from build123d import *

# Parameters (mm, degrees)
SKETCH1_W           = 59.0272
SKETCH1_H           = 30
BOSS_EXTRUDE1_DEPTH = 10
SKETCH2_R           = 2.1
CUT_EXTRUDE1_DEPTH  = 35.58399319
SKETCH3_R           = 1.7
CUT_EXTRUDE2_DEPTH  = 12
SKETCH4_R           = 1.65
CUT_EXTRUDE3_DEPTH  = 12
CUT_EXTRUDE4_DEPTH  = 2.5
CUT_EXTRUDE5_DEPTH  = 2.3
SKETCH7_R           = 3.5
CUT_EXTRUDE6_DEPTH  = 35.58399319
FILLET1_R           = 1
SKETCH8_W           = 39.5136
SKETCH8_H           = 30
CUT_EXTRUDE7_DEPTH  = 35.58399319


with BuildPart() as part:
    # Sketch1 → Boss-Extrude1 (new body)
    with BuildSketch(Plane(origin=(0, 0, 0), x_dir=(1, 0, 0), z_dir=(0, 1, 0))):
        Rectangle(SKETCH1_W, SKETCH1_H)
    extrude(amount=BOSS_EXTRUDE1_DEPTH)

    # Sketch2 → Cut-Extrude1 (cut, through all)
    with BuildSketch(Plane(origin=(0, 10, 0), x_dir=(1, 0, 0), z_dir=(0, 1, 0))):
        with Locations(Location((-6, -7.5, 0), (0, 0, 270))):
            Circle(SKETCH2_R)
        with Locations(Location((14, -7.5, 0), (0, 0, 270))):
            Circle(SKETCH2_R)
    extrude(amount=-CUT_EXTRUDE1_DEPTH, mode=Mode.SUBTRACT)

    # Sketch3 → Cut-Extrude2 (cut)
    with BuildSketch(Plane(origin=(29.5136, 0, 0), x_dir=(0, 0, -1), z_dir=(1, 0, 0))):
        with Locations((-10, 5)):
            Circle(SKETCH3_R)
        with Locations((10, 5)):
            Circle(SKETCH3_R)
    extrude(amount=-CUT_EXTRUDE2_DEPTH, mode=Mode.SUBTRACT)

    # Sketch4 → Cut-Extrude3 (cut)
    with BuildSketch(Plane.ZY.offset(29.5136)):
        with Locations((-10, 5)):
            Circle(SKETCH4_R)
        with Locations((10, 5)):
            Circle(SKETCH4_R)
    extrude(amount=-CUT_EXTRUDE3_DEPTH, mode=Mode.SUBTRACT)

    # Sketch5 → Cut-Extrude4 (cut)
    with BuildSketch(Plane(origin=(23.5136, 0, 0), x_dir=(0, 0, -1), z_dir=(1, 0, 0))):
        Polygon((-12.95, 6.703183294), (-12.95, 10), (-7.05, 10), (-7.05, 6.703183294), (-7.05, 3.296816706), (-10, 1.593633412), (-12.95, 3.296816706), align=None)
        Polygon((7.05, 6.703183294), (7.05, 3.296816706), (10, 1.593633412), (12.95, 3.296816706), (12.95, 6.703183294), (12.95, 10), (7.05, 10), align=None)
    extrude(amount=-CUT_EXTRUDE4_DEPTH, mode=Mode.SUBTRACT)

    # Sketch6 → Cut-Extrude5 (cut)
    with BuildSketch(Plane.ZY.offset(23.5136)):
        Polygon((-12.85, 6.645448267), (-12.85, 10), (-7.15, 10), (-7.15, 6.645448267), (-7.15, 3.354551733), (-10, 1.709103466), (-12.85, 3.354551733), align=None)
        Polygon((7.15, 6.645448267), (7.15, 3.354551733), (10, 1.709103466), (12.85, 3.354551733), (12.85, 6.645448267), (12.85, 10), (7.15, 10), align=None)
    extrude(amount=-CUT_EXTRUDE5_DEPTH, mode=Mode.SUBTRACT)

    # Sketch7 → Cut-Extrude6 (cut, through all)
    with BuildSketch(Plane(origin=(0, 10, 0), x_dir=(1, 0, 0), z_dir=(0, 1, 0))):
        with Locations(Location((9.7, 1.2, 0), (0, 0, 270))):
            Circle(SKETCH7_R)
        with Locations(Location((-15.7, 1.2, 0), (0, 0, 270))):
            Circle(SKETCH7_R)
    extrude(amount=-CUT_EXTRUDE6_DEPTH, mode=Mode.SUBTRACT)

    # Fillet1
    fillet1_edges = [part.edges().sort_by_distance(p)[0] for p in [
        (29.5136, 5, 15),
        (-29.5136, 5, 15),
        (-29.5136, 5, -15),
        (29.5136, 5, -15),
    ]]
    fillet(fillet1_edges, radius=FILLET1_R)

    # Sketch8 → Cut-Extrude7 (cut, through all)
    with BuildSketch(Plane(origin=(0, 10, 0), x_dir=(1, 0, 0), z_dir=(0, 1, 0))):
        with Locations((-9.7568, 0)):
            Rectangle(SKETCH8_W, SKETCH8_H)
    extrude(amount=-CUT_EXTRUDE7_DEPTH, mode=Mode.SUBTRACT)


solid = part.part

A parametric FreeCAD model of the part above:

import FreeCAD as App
import Part
import Sketcher

V = App.Vector
Q = App.Units.Quantity


def edges_at(feature, points):
    """Names of the edges that pass closest to the given points."""
    edges = feature.Shape.Edges
    near = lambda p: min(range(len(edges)), key=lambda i: edges[i].distToShape(Part.Vertex(*p))[0])
    return sorted({f"Edge{near(p) + 1}" for p in points})

doc = App.newDocument("Part")
body = doc.addObject("PartDesign::Body", "Body")

# Sketch on XZ plane
sketch1 = body.newObject("Sketcher::SketchObject", "Sketch")
sketch1.AttachmentSupport = (doc.getObject("XZ_Plane"), [""])
sketch1.MapMode = "FlatFace"
sketch1.addGeometry([
    Part.LineSegment(V(-30, -15, 0), V(-30, 15, 0)),
    Part.LineSegment(V(-30, 15, 0), V(30, 15, 0)),
    Part.LineSegment(V(30, 15, 0), V(30, -15, 0)),
    Part.LineSegment(V(30, -15, 0), V(-30, -15, 0)),
], False)
sketch1.addConstraint([
    Sketcher.Constraint("Coincident", 0, 2, 1, 1),
    Sketcher.Constraint("Coincident", 1, 2, 2, 1),
    Sketcher.Constraint("Coincident", 2, 2, 3, 1),
    Sketcher.Constraint("Coincident", 3, 2, 0, 1),
    Sketcher.Constraint("Vertical", 0),
    Sketcher.Constraint("Horizontal", 1),
    Sketcher.Constraint("Vertical", 2),
    Sketcher.Constraint("Horizontal", 3),
    Sketcher.Constraint("Symmetric", 0, 2, 2, 2, -1, 1),
    Sketcher.Constraint("DistanceY", 0, 1, 0, 2, 30.0),
    Sketcher.Constraint("DistanceX", 1, 1, 1, 2, 59.0272),
])
pad1 = body.newObject("PartDesign::Pad", "Pad")
pad1.Profile = sketch1
pad1.Length = 10
pad1.Reversed = True

# Sketch on XZ plane
sketch2 = body.newObject("Sketcher::SketchObject", "Sketch001")
sketch2.AttachmentSupport = (doc.getObject("XZ_Plane"), [""])
sketch2.MapMode = "FlatFace"
sketch2.AttachmentOffset = App.Placement(V(0, 0, -10), App.Rotation())
sketch2.addGeometry([
    Part.Circle(V(-6, 7.5, 0), V(0, 0, 1), 2.1),
    Part.Circle(V(14, 7.5, 0), V(0, 0, 1), 2.1),
], False)
sketch2.addConstraint([
    Sketcher.Constraint("Equal", 0, 1),
    Sketcher.Constraint("Horizontal", 0, 3, 1, 3),
    Sketcher.Constraint("Diameter", 0, 4.2),
    Sketcher.Constraint("DistanceX", 0, 3, -1, 1, 6.0),
    Sketcher.Constraint("DistanceX", -1, 1, 1, 3, 14.0),
    Sketcher.Constraint("DistanceY", -1, 1, 0, 3, 7.5),
])
pocket1 = body.newObject("PartDesign::Pocket", "Pocket")
pocket1.Profile = sketch2
pocket1.Type = "ThroughAll"
pocket1.Reversed = True

# Sketch on YZ plane
sketch3 = body.newObject("Sketcher::SketchObject", "Sketch002")
sketch3.AttachmentSupport = (doc.getObject("YZ_Plane"), [""])
sketch3.MapMode = "FlatFace"
sketch3.AttachmentOffset = App.Placement(V(0, 0, 29.5136), App.Rotation())
sketch3.addGeometry([
    Part.Circle(V(5, 10, 0), V(0, 0, 1), 1.7),
    Part.Circle(V(5, -10, 0), V(0, 0, 1), 1.7),
], False)
sketch3.addConstraint([
    Sketcher.Constraint("Equal", 0, 1),
    Sketcher.Constraint("Symmetric", 0, 3, 1, 3, -1),
    Sketcher.Constraint("Diameter", 0, 3.4),
    Sketcher.Constraint("DistanceX", -1, 1, 0, 3, 5.0),
    Sketcher.Constraint("DistanceY", -1, 1, 0, 3, 10.0),
])
pocket2 = body.newObject("PartDesign::Pocket", "Pocket001")
pocket2.Profile = sketch3
pocket2.Length = 12

# Sketch on YZ plane
sketch4 = body.newObject("Sketcher::SketchObject", "Sketch003")
sketch4.AttachmentSupport = (doc.getObject("YZ_Plane"), [""])
sketch4.MapMode = "FlatFace"
sketch4.AttachmentOffset = App.Placement(V(0, 0, -29.5136), App.Rotation())
sketch4.addGeometry([
    Part.Circle(V(5, -10, 0), V(0, 0, 1), 1.6),
    Part.Circle(V(5, 10, 0), V(0, 0, 1), 1.6),
], False)
sketch4.addConstraint([
    Sketcher.Constraint("Equal", 0, 1),
    Sketcher.Constraint("Symmetric", 0, 3, 1, 3, -1),
    Sketcher.Constraint("Diameter", 0, 3.3),
    Sketcher.Constraint("DistanceX", -1, 1, 0, 3, 5.0),
    Sketcher.Constraint("DistanceY", 0, 3, -1, 1, 10.0),
])
pocket3 = body.newObject("PartDesign::Pocket", "Pocket002")
pocket3.Profile = sketch4
pocket3.Length = 12
pocket3.Reversed = True

# Sketch on YZ plane
sketch5 = body.newObject("Sketcher::SketchObject", "Sketch004")
sketch5.AttachmentSupport = (doc.getObject("YZ_Plane"), [""])
sketch5.MapMode = "FlatFace"
sketch5.AttachmentOffset = App.Placement(V(0, 0, 23.5136), App.Rotation())
sketch5.addGeometry([
    Part.LineSegment(V(10, 12.9, 0), V(3.3, 12.9, 0)),  # 0
    Part.LineSegment(V(3.3, 12.9, 0), V(1.6, 10, 0)),  # 1
    Part.LineSegment(V(1.6, 10, 0), V(3.3, 7, 0)),  # 2
    Part.LineSegment(V(3.3, 7, 0), V(10, 7, 0)),  # 3
    Part.LineSegment(V(10, 7, 0), V(10, 12.9, 0)),  # 4
    Part.LineSegment(V(3.3, -7, 0), V(1.6, -10, 0)),  # 5
    Part.LineSegment(V(1.6, -10, 0), V(3.3, -12.9, 0)),  # 6
    Part.LineSegment(V(3.3, -12.9, 0), V(10, -12.9, 0)),  # 7
    Part.LineSegment(V(10, -12.9, 0), V(10, -7, 0)),  # 8
    Part.LineSegment(V(10, -7, 0), V(3.3, -7, 0)),  # 9
], False)
sketch5.addConstraint([
    Sketcher.Constraint("Coincident", 0, 2, 1, 1),
    Sketcher.Constraint("Coincident", 1, 2, 2, 1),
    Sketcher.Constraint("Coincident", 2, 2, 3, 1),
    Sketcher.Constraint("Coincident", 3, 2, 4, 1),
    Sketcher.Constraint("Coincident", 4, 2, 0, 1),
    Sketcher.Constraint("Coincident", 5, 2, 6, 1),
    Sketcher.Constraint("Coincident", 6, 2, 7, 1),
    Sketcher.Constraint("Coincident", 7, 2, 8, 1),
    Sketcher.Constraint("Coincident", 8, 2, 9, 1),
    Sketcher.Constraint("Coincident", 9, 2, 5, 1),
    Sketcher.Constraint("Horizontal", 0),
    Sketcher.Constraint("Horizontal", 3),
    Sketcher.Constraint("Vertical", 4),
    Sketcher.Constraint("Horizontal", 7),
    Sketcher.Constraint("Vertical", 8),
    Sketcher.Constraint("Horizontal", 9),
    Sketcher.Constraint("Symmetric", 1, 2, 5, 2, -1),
    Sketcher.Constraint("Symmetric", 0, 2, 6, 2, -1),
    Sketcher.Constraint("Symmetric", 3, 2, 8, 2, -1),
    Sketcher.Constraint("Parallel", 1, 5),
    Sketcher.Constraint("Parallel", 2, 6),
    Sketcher.Constraint("Vertical", 0, 2, 2, 2),
    Sketcher.Constraint("Angle", 1, Q("-120 deg")),
    Sketcher.Constraint("DistanceY", 4, 1, 4, 2, 5.9),
    Sketcher.Constraint("DistanceY", -1, 1, 1, 2, 10.0),
    Sketcher.Constraint("DistanceX", -1, 1, 3, 2, 10.0),
    Sketcher.Constraint("DistanceX", 0, 2, 0, 1, 6.703183),
])
pocket4 = body.newObject("PartDesign::Pocket", "Pocket003")
pocket4.Profile = sketch5
pocket4.Length = 2.5

# Sketch on YZ plane
sketch6 = body.newObject("Sketcher::SketchObject", "Sketch005")
sketch6.AttachmentSupport = (doc.getObject("YZ_Plane"), [""])
sketch6.MapMode = "FlatFace"
sketch6.AttachmentOffset = App.Placement(V(0, 0, -23.5136), App.Rotation())
sketch6.addGeometry([
    Part.LineSegment(V(10, -12.8, 0), V(3.4, -12.8, 0)),  # 0
    Part.LineSegment(V(3.4, -12.8, 0), V(1.7, -10, 0)),  # 1
    Part.LineSegment(V(1.7, -10, 0), V(3.4, -7.2, 0)),  # 2
    Part.LineSegment(V(3.4, -7.2, 0), V(10, -7.2, 0)),  # 3
    Part.LineSegment(V(10, -7.2, 0), V(10, -12.8, 0)),  # 4
    Part.LineSegment(V(3.4, 7.2, 0), V(1.7, 10, 0)),  # 5
    Part.LineSegment(V(1.7, 10, 0), V(3.4, 12.8, 0)),  # 6
    Part.LineSegment(V(3.4, 12.8, 0), V(10, 12.8, 0)),  # 7
    Part.LineSegment(V(10, 12.8, 0), V(10, 7.2, 0)),  # 8
    Part.LineSegment(V(10, 7.2, 0), V(3.4, 7.2, 0)),  # 9
], False)
sketch6.addConstraint([
    Sketcher.Constraint("Coincident", 0, 2, 1, 1),
    Sketcher.Constraint("Coincident", 1, 2, 2, 1),
    Sketcher.Constraint("Coincident", 2, 2, 3, 1),
    Sketcher.Constraint("Coincident", 3, 2, 4, 1),
    Sketcher.Constraint("Coincident", 4, 2, 0, 1),
    Sketcher.Constraint("Coincident", 5, 2, 6, 1),
    Sketcher.Constraint("Coincident", 6, 2, 7, 1),
    Sketcher.Constraint("Coincident", 7, 2, 8, 1),
    Sketcher.Constraint("Coincident", 8, 2, 9, 1),
    Sketcher.Constraint("Coincident", 9, 2, 5, 1),
    Sketcher.Constraint("Horizontal", 0),
    Sketcher.Constraint("Horizontal", 3),
    Sketcher.Constraint("Vertical", 4),
    Sketcher.Constraint("Horizontal", 7),
    Sketcher.Constraint("Vertical", 8),
    Sketcher.Constraint("Horizontal", 9),
    Sketcher.Constraint("Symmetric", 1, 2, 5, 2, -1),
    Sketcher.Constraint("Symmetric", 0, 2, 6, 2, -1),
    Sketcher.Constraint("Symmetric", 3, 2, 8, 2, -1),
    Sketcher.Constraint("Parallel", 1, 5),
    Sketcher.Constraint("Parallel", 2, 6),
    Sketcher.Constraint("Vertical", 0, 2, 2, 2),
    Sketcher.Constraint("Angle", 1, Q("120 deg")),
    Sketcher.Constraint("DistanceY", 4, 2, 4, 1, 5.7),
    Sketcher.Constraint("DistanceY", 1, 2, -1, 1, 10.0),
    Sketcher.Constraint("DistanceX", -1, 1, 3, 2, 10.0),
    Sketcher.Constraint("DistanceX", 0, 2, 0, 1, 6.645448),
])
pocket5 = body.newObject("PartDesign::Pocket", "Pocket004")
pocket5.Profile = sketch6
pocket5.Length = 2.3
pocket5.Reversed = True

# Sketch on XZ plane
sketch7 = body.newObject("Sketcher::SketchObject", "Sketch006")
sketch7.AttachmentSupport = (doc.getObject("XZ_Plane"), [""])
sketch7.MapMode = "FlatFace"
sketch7.AttachmentOffset = App.Placement(V(0, 0, -10), App.Rotation())
sketch7.addGeometry([
    Part.Circle(V(9.7, -1.2, 0), V(0, 0, 1), 3.5),
    Part.Circle(V(-15.7, -1.2, 0), V(0, 0, 1), 3.5),
], False)
sketch7.addConstraint([
    Sketcher.Constraint("Equal", 0, 1),
    Sketcher.Constraint("Horizontal", 0, 3, 1, 3),
    Sketcher.Constraint("Diameter", 0, 7.0),
    Sketcher.Constraint("DistanceX", -1, 1, 0, 3, 9.7),
    Sketcher.Constraint("DistanceY", 0, 3, -1, 1, 1.2),
    Sketcher.Constraint("DistanceX", 1, 3, -1, 1, 15.7),
])
pocket6 = body.newObject("PartDesign::Pocket", "Pocket005")
pocket6.Profile = sketch7
pocket6.Type = "ThroughAll"
pocket6.Reversed = True
doc.recompute()

fillet = body.newObject("PartDesign::Fillet", "Fillet")
fillet.Base = (pocket6, edges_at(pocket6, [
    (29.514, 5, 15),
    (-29.514, 5, 15),
    (-29.514, 5, -15),
    (29.514, 5, -15),
]))
fillet.Radius = 1

# Sketch on XZ plane
sketch8 = body.newObject("Sketcher::SketchObject", "Sketch007")
sketch8.AttachmentSupport = (doc.getObject("XZ_Plane"), [""])
sketch8.MapMode = "FlatFace"
sketch8.AttachmentOffset = App.Placement(V(0, 0, -10), App.Rotation())
sketch8.addGeometry([
    Part.LineSegment(V(-30, -15, 0), V(-30, 15, 0)),
    Part.LineSegment(V(-30, 15, 0), V(10, 15, 0)),
    Part.LineSegment(V(10, 15, 0), V(10, -15, 0)),
    Part.LineSegment(V(10, -15, 0), V(-30, -15, 0)),
], False)
sketch8.addConstraint([
    Sketcher.Constraint("Coincident", 0, 2, 1, 1),
    Sketcher.Constraint("Coincident", 1, 2, 2, 1),
    Sketcher.Constraint("Coincident", 2, 2, 3, 1),
    Sketcher.Constraint("Coincident", 3, 2, 0, 1),
    Sketcher.Constraint("Vertical", 0),
    Sketcher.Constraint("Horizontal", 1),
    Sketcher.Constraint("Vertical", 2),
    Sketcher.Constraint("Horizontal", 3),
    Sketcher.Constraint("DistanceY", 0, 1, 0, 2, 30.0),
    Sketcher.Constraint("DistanceY", -1, 1, 0, 2, 15.0),
    Sketcher.Constraint("DistanceX", -1, 1, 1, 2, 10.0),
    Sketcher.Constraint("DistanceX", 1, 1, 1, 2, 39.5136),
])
pocket7 = body.newObject("PartDesign::Pocket", "Pocket006")
pocket7.Profile = sketch8
pocket7.Type = "ThroughAll"
pocket7.Reversed = True

doc.recompute()
